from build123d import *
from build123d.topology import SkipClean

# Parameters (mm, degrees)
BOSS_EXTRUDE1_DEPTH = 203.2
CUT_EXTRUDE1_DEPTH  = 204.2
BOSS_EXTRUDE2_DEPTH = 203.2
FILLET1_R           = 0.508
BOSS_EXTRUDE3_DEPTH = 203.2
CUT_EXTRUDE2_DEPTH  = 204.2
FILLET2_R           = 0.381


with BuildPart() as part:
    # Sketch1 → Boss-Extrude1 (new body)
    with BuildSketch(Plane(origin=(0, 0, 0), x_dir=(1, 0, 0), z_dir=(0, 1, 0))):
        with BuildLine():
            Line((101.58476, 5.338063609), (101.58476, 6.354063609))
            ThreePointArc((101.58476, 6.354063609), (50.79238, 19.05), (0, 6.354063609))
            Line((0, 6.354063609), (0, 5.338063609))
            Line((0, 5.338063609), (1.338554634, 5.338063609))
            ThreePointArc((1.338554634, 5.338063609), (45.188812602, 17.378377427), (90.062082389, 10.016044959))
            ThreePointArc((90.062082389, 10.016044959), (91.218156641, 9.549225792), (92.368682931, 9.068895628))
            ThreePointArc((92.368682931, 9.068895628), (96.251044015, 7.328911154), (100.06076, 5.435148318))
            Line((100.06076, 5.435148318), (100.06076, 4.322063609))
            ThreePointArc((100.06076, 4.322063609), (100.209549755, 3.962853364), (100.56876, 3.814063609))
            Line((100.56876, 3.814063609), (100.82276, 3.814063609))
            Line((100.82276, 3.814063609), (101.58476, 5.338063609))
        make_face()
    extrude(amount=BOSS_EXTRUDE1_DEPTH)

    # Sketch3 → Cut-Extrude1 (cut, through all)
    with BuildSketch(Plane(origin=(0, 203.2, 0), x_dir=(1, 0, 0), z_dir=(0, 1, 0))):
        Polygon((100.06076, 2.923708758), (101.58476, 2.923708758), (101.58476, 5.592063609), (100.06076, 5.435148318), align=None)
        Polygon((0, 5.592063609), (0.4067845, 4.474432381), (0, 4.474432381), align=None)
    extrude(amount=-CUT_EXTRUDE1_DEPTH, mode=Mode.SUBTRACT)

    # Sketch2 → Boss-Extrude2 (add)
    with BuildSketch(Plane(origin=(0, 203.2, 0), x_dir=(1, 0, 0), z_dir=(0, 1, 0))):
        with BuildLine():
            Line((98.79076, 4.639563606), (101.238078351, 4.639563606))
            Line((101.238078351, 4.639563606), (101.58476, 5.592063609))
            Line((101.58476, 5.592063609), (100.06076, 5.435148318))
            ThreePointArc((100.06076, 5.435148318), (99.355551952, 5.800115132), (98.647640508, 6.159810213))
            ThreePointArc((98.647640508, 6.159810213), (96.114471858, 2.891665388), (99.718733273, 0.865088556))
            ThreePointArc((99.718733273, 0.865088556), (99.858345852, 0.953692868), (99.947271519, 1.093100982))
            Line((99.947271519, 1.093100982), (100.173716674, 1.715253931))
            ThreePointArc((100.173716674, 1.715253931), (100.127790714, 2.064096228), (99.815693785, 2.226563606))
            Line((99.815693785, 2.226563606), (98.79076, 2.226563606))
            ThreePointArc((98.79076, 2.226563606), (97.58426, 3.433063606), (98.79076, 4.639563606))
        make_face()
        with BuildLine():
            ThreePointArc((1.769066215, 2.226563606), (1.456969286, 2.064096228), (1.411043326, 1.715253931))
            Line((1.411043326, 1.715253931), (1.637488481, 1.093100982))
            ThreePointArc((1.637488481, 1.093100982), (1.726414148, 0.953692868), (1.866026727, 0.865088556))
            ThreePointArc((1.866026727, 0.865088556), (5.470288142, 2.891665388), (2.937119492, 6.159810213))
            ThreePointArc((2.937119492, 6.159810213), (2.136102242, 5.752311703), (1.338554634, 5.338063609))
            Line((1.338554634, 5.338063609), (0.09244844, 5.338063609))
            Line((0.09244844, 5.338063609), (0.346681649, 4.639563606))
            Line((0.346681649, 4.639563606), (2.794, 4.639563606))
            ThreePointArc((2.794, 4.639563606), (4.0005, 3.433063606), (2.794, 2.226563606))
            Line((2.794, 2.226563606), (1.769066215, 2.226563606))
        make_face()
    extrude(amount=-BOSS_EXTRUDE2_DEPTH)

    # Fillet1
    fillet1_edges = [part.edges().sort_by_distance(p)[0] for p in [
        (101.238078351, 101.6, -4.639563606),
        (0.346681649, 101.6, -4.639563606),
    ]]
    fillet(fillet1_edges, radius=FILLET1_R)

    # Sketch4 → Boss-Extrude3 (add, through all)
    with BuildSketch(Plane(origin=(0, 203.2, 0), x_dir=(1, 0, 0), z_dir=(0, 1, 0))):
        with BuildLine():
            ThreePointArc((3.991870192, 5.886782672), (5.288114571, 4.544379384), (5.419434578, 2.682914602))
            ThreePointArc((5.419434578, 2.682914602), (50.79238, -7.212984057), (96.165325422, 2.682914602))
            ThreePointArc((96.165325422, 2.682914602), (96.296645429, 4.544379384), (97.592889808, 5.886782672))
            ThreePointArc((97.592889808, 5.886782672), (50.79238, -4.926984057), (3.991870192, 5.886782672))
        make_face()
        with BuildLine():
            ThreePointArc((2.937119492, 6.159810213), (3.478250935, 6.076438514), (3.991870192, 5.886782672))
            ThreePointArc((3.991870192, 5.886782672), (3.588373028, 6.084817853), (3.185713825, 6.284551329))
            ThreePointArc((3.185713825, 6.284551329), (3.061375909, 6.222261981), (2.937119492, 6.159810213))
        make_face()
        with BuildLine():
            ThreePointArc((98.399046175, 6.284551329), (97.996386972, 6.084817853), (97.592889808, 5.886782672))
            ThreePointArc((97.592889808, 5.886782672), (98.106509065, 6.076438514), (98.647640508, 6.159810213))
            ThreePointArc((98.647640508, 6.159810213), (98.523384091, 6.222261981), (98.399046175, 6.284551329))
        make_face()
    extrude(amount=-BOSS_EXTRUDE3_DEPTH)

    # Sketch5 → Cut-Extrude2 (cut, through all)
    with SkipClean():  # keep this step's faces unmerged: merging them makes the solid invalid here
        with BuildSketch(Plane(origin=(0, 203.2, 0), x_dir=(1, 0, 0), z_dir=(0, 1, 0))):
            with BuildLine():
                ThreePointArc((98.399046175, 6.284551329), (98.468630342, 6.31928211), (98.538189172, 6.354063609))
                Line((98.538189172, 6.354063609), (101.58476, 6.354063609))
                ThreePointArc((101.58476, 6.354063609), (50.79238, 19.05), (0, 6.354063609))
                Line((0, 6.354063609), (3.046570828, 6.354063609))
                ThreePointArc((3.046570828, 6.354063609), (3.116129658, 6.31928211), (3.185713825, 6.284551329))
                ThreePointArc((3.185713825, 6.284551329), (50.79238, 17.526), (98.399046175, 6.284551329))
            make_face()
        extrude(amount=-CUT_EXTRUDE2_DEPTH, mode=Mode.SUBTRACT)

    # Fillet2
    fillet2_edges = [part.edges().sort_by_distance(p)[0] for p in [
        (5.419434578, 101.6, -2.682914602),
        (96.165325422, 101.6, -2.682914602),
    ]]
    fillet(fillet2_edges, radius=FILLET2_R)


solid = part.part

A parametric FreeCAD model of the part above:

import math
import FreeCAD as App
import Part
import Sketcher

V = App.Vector
Q = App.Units.Quantity


def edges_at(feature, points):
    """Names of the edges that pass closest to the given points."""
    edges = feature.Shape.Edges
    near = lambda p: min(range(len(edges)), key=lambda i: edges[i].distToShape(Part.Vertex(*p))[0])
    return sorted({f"Edge{near(p) + 1}" for p in points})


def add_polygon(sketch, points):
    """Adds a closed chain of lines whose ends are joined by coincident constraints."""
    first, n = sketch.GeometryCount, len(points)
    for a, b in zip(points, points[1:] + points[:1]):
        sketch.addGeometry(Part.LineSegment(App.Vector(*a, 0), App.Vector(*b, 0)), False)
    for i in range(n):
        sketch.addConstraint(Sketcher.Constraint("Coincident", first + i, 2, first + (i + 1) % n, 1))

doc = App.newDocument("Part")
body = doc.addObject("PartDesign::Body", "Body")

# Sketch on XZ plane
sketch1 = body.newObject("Sketcher::SketchObject", "Sketch")
sketch1.AttachmentSupport = (doc.getObject("XZ_Plane"), [""])
sketch1.MapMode = "FlatFace"
sketch1.addGeometry(Part.LineSegment(V(101.58, -5.34, 0), V(101.58, -6.35, 0)), False)
sketch1.addGeometry(Part.ArcOfCircle(Part.Circle(V(50.79, 88.9, 0), V(0, 0, 1), 107.95), math.radians(-118), math.radians(-62)), False)
sketch1.addGeometry(Part.LineSegment(V(0, -6.35, 0), V(0, -5.34, 0)), False)
sketch1.addGeometry(Part.LineSegment(V(0, -5.34, 0), V(1.34, -5.34, 0)), False)
sketch1.addGeometry(Part.ArcOfCircle(Part.Circle(V(50.79, 88.9, 0), V(0, 0, 1), 106.43), math.radians(-118), math.radians(-68)), False)
sketch1.addGeometry(Part.ArcOfCircle(Part.Circle(V(50.79, 88.9, 0), V(0, 0, 1), 106.43), math.radians(-68.35), math.radians(-67)), False)
sketch1.addGeometry(Part.ArcOfCircle(Part.Circle(V(50.79, 88.9, 0), V(0, 0, 1), 106.43), math.radians(-67), math.radians(-62.42)), False)
sketch1.addGeometry(Part.LineSegment(V(100.06, -5.44, 0), V(100.06, -4.32, 0)), False)
sketch1.addGeometry(Part.ArcOfCircle(Part.Circle(V(100.57, -4.32, 0), V(0, 0, 1), 0.51), math.radians(90), math.radians(180)), False)
sketch1.addGeometry(Part.LineSegment(V(100.57, -3.81, 0), V(100.82, -3.81, 0)), False)
sketch1.addGeometry(Part.LineSegment(V(100.82, -3.81, 0), V(101.58, -5.34, 0)), False)
sketch1.addConstraint(Sketcher.Constraint("Coincident", 0, 2, 1, 2))
sketch1.addConstraint(Sketcher.Constraint("Coincident", 1, 1, 2, 1))
sketch1.addConstraint(Sketcher.Constraint("Coincident", 2, 2, 3, 1))
sketch1.addConstraint(Sketcher.Constraint("Coincident", 3, 2, 4, 1))
sketch1.addConstraint(Sketcher.Constraint("Tangent", 4, 2, 5, 1))
sketch1.addConstraint(Sketcher.Constraint("Tangent", 5, 2, 6, 1))
sketch1.addConstraint(Sketcher.Constraint("Coincident", 6, 2, 7, 1))
sketch1.addConstraint(Sketcher.Constraint("Tangent", 7, 2, 8, 2))
sketch1.addConstraint(Sketcher.Constraint("Tangent", 8, 1, 9, 1))
sketch1.addConstraint(Sketcher.Constraint("Coincident", 9, 2, 10, 1))
sketch1.addConstraint(Sketcher.Constraint("Coincident", 10, 2, 0, 1))
sketch1.addConstraint(Sketcher.Constraint("Vertical", 0))
sketch1.addConstraint(Sketcher.Constraint("Vertical", 2))
sketch1.addConstraint(Sketcher.Constraint("Horizontal", 3))
sketch1.addConstraint(Sketcher.Constraint("Vertical", 7))
sketch1.addConstraint(Sketcher.Constraint("Horizontal", 9))
sketch1.addConstraint(Sketcher.Constraint("Coincident", 4, 3, 1, 3))
sketch1.addConstraint(Sketcher.Constraint("Coincident", 6, 3, 1, 3))
sketch1.addConstraint(Sketcher.Constraint("PointOnObject", 1, 1, -2))
sketch1.addConstraint(Sketcher.Constraint("Horizontal", 0, 2, 1, 1))
sketch1.addConstraint(Sketcher.Constraint("Horizontal", 3, 2, 10, 2))
sketch1.addConstraint(Sketcher.Constraint("Radius", 1, Q("4.25 in")))
sketch1.addConstraint(Sketcher.Constraint("Radius", 4, Q("4.19 in")))
sketch1.addConstraint(Sketcher.Constraint("Radius", 8, Q("0.02 in")))
sketch1.addConstraint(Sketcher.Constraint("DistanceX", 9, 1, 9, 2, Q("0.01 in")))
sketch1.addConstraint(Sketcher.Constraint("DistanceY", 0, 2, 0, 1, Q("0.04 in")))
sketch1.addConstraint(Sketcher.Constraint("DistanceY", -1, 1, 1, 3, Q("3.5 in")))
sketch1.addConstraint(Sketcher.Constraint("DistanceY", 0, 2, 8, 1, Q("0.1 in")))
sketch1.addConstraint(Sketcher.Constraint("DistanceX", 8, 3, 0, 2, Q("0.04 in")))
sketch1.addConstraint(Sketcher.Constraint("DistanceX", -1, 1, 1, 3, Q("1.9997 in")))
sketch1.addConstraint(Sketcher.Constraint("DistanceX", 4, 2, 5, 2, Q("2.306601 mm")))
sketch1.addConstraint(Sketcher.Constraint("DistanceY", 4, 2, 8, 3, Q("5.693981 mm")))
pad1 = body.newObject("PartDesign::Pad", "Pad")
pad1.Profile = sketch1
pad1.Length = Q("8 in")
pad1.Reversed = True

# Sketch on XZ plane
sketch2 = body.newObject("Sketcher::SketchObject", "Sketch001")
sketch2.AttachmentSupport = (doc.getObject("XZ_Plane"), [""])
sketch2.MapMode = "FlatFace"
sketch2.AttachmentOffset = App.Placement(V(0, 0, -8 * 25.4), App.Rotation())
add_polygon(sketch2, [(100.06, -2.92), (101.58, -2.92), (101.58, -5.59), (100.06, -5.44)])  # lines 0-3
add_polygon(sketch2, [(0.41, -4.47), (0, -5.59), (0, -4.47)])  # lines 4-6
sketch2.addConstraint(Sketcher.Constraint("Horizontal", 0))
sketch2.addConstraint(Sketcher.Constraint("Vertical", 1))
sketch2.addConstraint(Sketcher.Constraint("Vertical", 3))
sketch2.addConstraint(Sketcher.Constraint("Vertical", 5))
sketch2.addConstraint(Sketcher.Constraint("Horizontal", 6))
sketch2.addConstraint(Sketcher.Constraint("PointOnObject", 4, 2, -2))
sketch2.addConstraint(Sketcher.Constraint("Horizontal", 1, 2, 4, 2))
sketch2.addConstraint(Sketcher.Constraint("Angle", 4, Q("-110 deg")))
sketch2.addConstraint(Sketcher.Constraint("DistanceX", 0, 1, 0, 2, Q("0.06 in")))
sketch2.addConstraint(Sketcher.Constraint("DistanceX", -1, 1, 0, 2, Q("3.9994 in")))
sketch2.addConstraint(Sketcher.Constraint("DistanceY", 3, 1, 3, 2, Q("2.51144 mm")))
sketch2.addConstraint(Sketcher.Constraint("DistanceY", 5, 1, 5, 2, Q("1.117631 mm")))
sketch2.addConstraint(Sketcher.Constraint("DistanceY", 1, 2, 1, 1, Q("2.668355 mm")))
sketch2.addConstraint(Sketcher.Constraint("DistanceY", 0, 2, -1, 1, Q("2.923709 mm")))
pocket1 = body.newObject("PartDesign::Pocket", "Pocket")
pocket1.Profile = sketch2
pocket1.Type = "ThroughAll"
pocket1.Reversed = True

# Sketch on XZ plane
sketch3 = body.newObject("Sketcher::SketchObject", "Sketch002")
sketch3.AttachmentSupport = (doc.getObject("XZ_Plane"), [""])
sketch3.MapMode = "FlatFace"
sketch3.AttachmentOffset = App.Placement(V(0, 0, -8 * 25.4), App.Rotation())
sketch3.addGeometry(Part.LineSegment(V(98.79, -4.64, 0), V(101.24, -4.64, 0)), False)
sketch3.addGeometry(Part.LineSegment(V(101.24, -4.64, 0), V(101.58, -5.59, 0)), False)
sketch3.addGeometry(Part.LineSegment(V(101.58, -5.59, 0), V(100.06, -5.44, 0)), False)
sketch3.addGeometry(Part.ArcOfCircle(Part.Circle(V(50.79, 88.9, 0), V(0, 0, 1), 106.43), math.radians(-63.28), math.radians(-62.42)), False)
sketch3.addGeometry(Part.ArcOfCircle(Part.Circle(V(98.79, -3.43, 0), V(0, 0, 1), 2.73), math.radians(70), math.radians(267)), False)
sketch3.addGeometry(Part.ArcOfCircle(Part.Circle(V(99.59, -1.22, 0), V(0, 0, 1), 0.38), math.radians(20), math.radians(70)), False)
sketch3.addGeometry(Part.LineSegment(V(99.95, -1.09, 0), V(100.17, -1.72, 0)), False)
sketch3.addGeometry(Part.ArcOfCircle(Part.Circle(V(99.82, -1.85, 0), V(0, 0, 1), 0.38), math.radians(-90), math.radians(20)), False)
sketch3.addGeometry(Part.LineSegment(V(99.82, -2.23, 0), V(98.79, -2.23, 0)), False)
sketch3.addGeometry(Part.ArcOfCircle(Part.Circle(V(98.79, -3.43, 0), V(0, 0, 1), 1.21), math.radians(90), math.radians(270)), False)
sketch3.addGeometry(Part.ArcOfCircle(Part.Circle(V(1.77, -1.85, 0), V(0, 0, 1), 0.38), math.radians(160), math.radians(270)), False)
sketch3.addGeometry(Part.LineSegment(V(1.41, -1.72, 0), V(1.64, -1.09, 0)), False)
sketch3.addGeometry(Part.ArcOfCircle(Part.Circle(V(2, -1.22, 0), V(0, 0, 1), 0.38), math.radians(110), math.radians(160)), False)
sketch3.addGeometry(Part.ArcOfCircle(Part.Circle(V(2.79, -3.43, 0), V(0, 0, 1), 2.73), math.radians(-87), math.radians(110)), False)
sketch3.addGeometry(Part.ArcOfCircle(Part.Circle(V(50.79, 88.9, 0), V(0, 0, 1), 106.43), math.radians(-117.69), math.radians(-116.72)), False)
sketch3.addGeometry(Part.LineSegment(V(1.34, -5.34, 0), V(0.09, -5.34, 0)), False)
sketch3.addGeometry(Part.LineSegment(V(0.09, -5.34, 0), V(0.35, -4.64, 0)), False)
sketch3.addGeometry(Part.LineSegment(V(0.35, -4.64, 0), V(2.79, -4.64, 0)), False)
sketch3.addGeometry(Part.ArcOfCircle(Part.Circle(V(2.79, -3.43, 0), V(0, 0, 1), 1.21), math.radians(-90), math.radians(90)), False)
sketch3.addGeometry(Part.LineSegment(V(2.79, -2.23, 0), V(1.77, -2.23, 0)), False)
sketch3.addConstraint(Sketcher.Constraint("Coincident", 0, 2, 1, 1))
sketch3.addConstraint(Sketcher.Constraint("Coincident", 1, 2, 2, 1))
sketch3.addConstraint(Sketcher.Constraint("Coincident", 2, 2, 3, 2))
sketch3.addConstraint(Sketcher.Constraint("Coincident", 3, 1, 4, 2))
sketch3.addConstraint(Sketcher.Constraint("Tangent", 4, 1, 5, 2))
sketch3.addConstraint(Sketcher.Constraint("Tangent", 5, 1, 6, 1))
sketch3.addConstraint(Sketcher.Constraint("Tangent", 6, 2, 7, 2))
sketch3.addConstraint(Sketcher.Constraint("Tangent", 7, 1, 8, 1))
sketch3.addConstraint(Sketcher.Constraint("Tangent", 8, 2, 9, 1))
sketch3.addConstraint(Sketcher.Constraint("Tangent", 9, 2, 0, 1))
sketch3.addConstraint(Sketcher.Constraint("Tangent", 10, 1, 11, 1))
sketch3.addConstraint(Sketcher.Constraint("Tangent", 11, 2, 12, 2))
sketch3.addConstraint(Sketcher.Constraint("Tangent", 12, 1, 13, 2))
sketch3.addConstraint(Sketcher.Constraint("Coincident", 13, 1, 14, 2))
sketch3.addConstraint(Sketcher.Constraint("Coincident", 14, 1, 15, 1))
sketch3.addConstraint(Sketcher.Constraint("Coincident", 15, 2, 16, 1))
sketch3.addConstraint(Sketcher.Constraint("Coincident", 16, 2, 17, 1))
sketch3.addConstraint(Sketcher.Constraint("Tangent", 17, 2, 18, 1))
sketch3.addConstraint(Sketcher.Constraint("Tangent", 18, 2, 19, 1))
sketch3.addConstraint(Sketcher.Constraint("Tangent", 19, 2, 10, 2))
sketch3.addConstraint(Sketcher.Constraint("Horizontal", 0))
sketch3.addConstraint(Sketcher.Constraint("Horizontal", 8))
sketch3.addConstraint(Sketcher.Constraint("Horizontal", 15))
sketch3.addConstraint(Sketcher.Constraint("Horizontal", 17))
sketch3.addConstraint(Sketcher.Constraint("Horizontal", 19))
sketch3.addConstraint(Sketcher.Constraint("Coincident", 9, 3, 4, 3))
sketch3.addConstraint(Sketcher.Constraint("Coincident", 18, 3, 13, 3))
sketch3.addConstraint(Sketcher.Constraint("Equal", 5, 7))
sketch3.addConstraint(Sketcher.Constraint("Equal", 7, 10))
sketch3.addConstraint(Sketcher.Constraint("Equal", 10, 12))
sketch3.addConstraint(Sketcher.Constraint("Equal", 4, 13))
sketch3.addConstraint(Sketcher.Constraint("Equal", 9, 18))
sketch3.addConstraint(Sketcher.Constraint("Parallel", 1, 6))
sketch3.addConstraint(Sketcher.Constraint("Parallel", 11, 16))
sketch3.addConstraint(Sketcher.Constraint("Horizontal", 7, 3, 10, 3))
sketch3.addConstraint(Sketcher.Constraint("Horizontal", 5, 3, 12, 3))
sketch3.addConstraint(Sketcher.Constraint("Horizontal", 6, 2, 10, 1))
sketch3.addConstraint(Sketcher.Constraint("Horizontal", 3, 1, 13, 1))
sketch3.addConstraint(Sketcher.Constraint("Vertical", 3, 3, 14, 3))
sketch3.addConstraint(Sketcher.Constraint("Equal", 0, 17))
sketch3.addConstraint(Sketcher.Constraint("Angle", 1, Q("-70 deg")))
sketch3.addConstraint(Sketcher.Constraint("Radius", 5, Q("0.015 in")))
sketch3.addConstraint(Sketcher.Constraint("Radius", 4, Q("0.1075 in")))
sketch3.addConstraint(Sketcher.Constraint("Radius", 9, Q("0.0475 in")))
sketch3.addConstraint(Sketcher.Constraint("DistanceX", -1, 1, 13, 3, Q("0.11 in")))
sketch3.addConstraint(Sketcher.Constraint("DistanceX", 4, 3, 1, 2, Q("0.11 in")))
sketch3.addConstraint(Sketcher.Constraint("DistanceX", 2, 2, 1, 2, Q("0.06 in")))
sketch3.addConstraint(Sketcher.Constraint("Radius", 14, Q("106.42601 mm")))
sketch3.addConstraint(Sketcher.Constraint("DistanceY", 1, 2, 4, 3, Q("0.085 in")))
sketch3.addConstraint(Sketcher.Constraint("DistanceY", 14, 1, 13, 3, Q("0.075 in")))
sketch3.addConstraint(Sketcher.Constraint("DistanceX", -1, 1, 3, 3, Q("1.9997001 in")))
sketch3.addConstraint(Sketcher.Constraint("DistanceX", -1, 1, 4, 3, Q("3.8894 in")))
sketch3.addConstraint(Sketcher.Constraint("Radius", 3, Q("106.425993 mm")))
sketch3.addConstraint(Sketcher.Constraint("DistanceY", 5, 1, -1, 1, Q("1.093101 mm")))
sketch3.addConstraint(Sketcher.Constraint("DistanceY", 13, 1, 12, 3, Q("4.9364 mm")))
sketch3.addConstraint(Sketcher.Constraint("Distance", 6, Q("0.662081 mm")))
pad2 = body.newObject("PartDesign::Pad", "Pad001")
pad2.Profile = sketch3
pad2.Length = Q("8 in")
doc.recompute()

fillet = body.newObject("PartDesign::Fillet", "Fillet")
fillet.Base = (pad2, edges_at(pad2, [(101.238, 101.6, -4.64), (0.347, 101.6, -4.64)]))
fillet.Radius = Q("0.02 in")

# Sketch on XZ plane
sketch4 = body.newObject("Sketcher::SketchObject", "Sketch003")
sketch4.AttachmentSupport = (doc.getObject("XZ_Plane"), [""])
sketch4.MapMode = "FlatFace"
sketch4.AttachmentOffset = App.Placement(V(0, 0, -8 * 25.4), App.Rotation())
sketch4.addGeometry(Part.ArcOfCircle(Part.Circle(V(2.79, -3.43, 0), V(0, 0, 1), 2.73), math.radians(-64), math.radians(16)), False)
sketch4.addGeometry(Part.ArcOfCircle(Part.Circle(V(50.79, -101.75, 0), V(0, 0, 1), 108.97), math.radians(65), math.radians(115)), False)
sketch4.addGeometry(Part.ArcOfCircle(Part.Circle(V(98.79, -3.43, 0), V(0, 0, 1), 2.73), math.radians(164), math.radians(244)), False)
sketch4.addGeometry(Part.ArcOfCircle(Part.Circle(V(50.79, -101.75, 0), V(0, 0, 1), 106.68), math.radians(64), math.radians(116)), False)
sketch4.addGeometry(Part.ArcOfCircle(Part.Circle(V(2.79, -3.43, 0), V(0, 0, 1), 2.73), math.radians(-87), math.radians(-64)), False)
sketch4.addGeometry(Part.ArcOfCircle(Part.Circle(V(50.79, -101.75, 0), V(0, 0, 1), 106.68), math.radians(116.02), math.radians(116.5)), False)
sketch4.addGeometry(Part.ArcOfCircle(Part.Circle(V(50.79, 88.9, 0), V(0, 0, 1), 106.43), math.radians(-116.72), math.radians(-116.57)), False)
sketch4.addGeometry(Part.ArcOfCircle(Part.Circle(V(50.79, -101.75, 0), V(0, 0, 1), 106.68), math.radians(63.5), math.radians(63.98)), False)
sketch4.addGeometry(Part.ArcOfCircle(Part.Circle(V(98.79, -3.43, 0), V(0, 0, 1), 2.73), math.radians(-116), math.radians(-93)), False)
sketch4.addGeometry(Part.ArcOfCircle(Part.Circle(V(50.79, 88.9, 0), V(0, 0, 1), 106.43), math.radians(-63.43), math.radians(-63.28)), False)
sketch4.addConstraint(Sketcher.Constraint("Coincident", 0, 2, 1, 2))
sketch4.addConstraint(Sketcher.Constraint("Coincident", 1, 1, 2, 1))
sketch4.addConstraint(Sketcher.Constraint("Tangent", 2, 2, 3, 1))
sketch4.addConstraint(Sketcher.Constraint("Tangent", 3, 2, 0, 1))
sketch4.addConstraint(Sketcher.Constraint("Tangent", 4, 2, 5, 1))
sketch4.addConstraint(Sketcher.Constraint("Coincident", 5, 2, 6, 2))
sketch4.addConstraint(Sketcher.Constraint("Coincident", 6, 1, 4, 1))
sketch4.addConstraint(Sketcher.Constraint("Tangent", 7, 2, 8, 1))
sketch4.addConstraint(Sketcher.Constraint("Coincident", 8, 2, 9, 2))
sketch4.addConstraint(Sketcher.Constraint("Coincident", 9, 1, 7, 1))
sketch4.addConstraint(Sketcher.Constraint("Coincident", 3, 3, 1, 3))
sketch4.addConstraint(Sketcher.Constraint("Coincident", 4, 3, 0, 3))
sketch4.addConstraint(Sketcher.Constraint("Coincident", 8, 3, 2, 3))
sketch4.addConstraint(Sketcher.Constraint("Equal", 0, 2))
sketch4.addConstraint(Sketcher.Constraint("Equal", 2, 4))
sketch4.addConstraint(Sketcher.Constraint("Equal", 5, 7))
sketch4.addConstraint(Sketcher.Constraint("Equal", 4, 8))
sketch4.addConstraint(Sketcher.Constraint("Equal", 6, 9))
sketch4.addConstraint(Sketcher.Constraint("Horizontal", 0, 3, 2, 3))
sketch4.addConstraint(Sketcher.Constraint("Horizontal", 5, 3, 7, 3))
sketch4.addConstraint(Sketcher.Constraint("Horizontal", 6, 3, 9, 3))
sketch4.addConstraint(Sketcher.Constraint("Horizontal", 2, 2, 4, 2))
sketch4.addConstraint(Sketcher.Constraint("Horizontal", 5, 2, 9, 1))
sketch4.addConstraint(Sketcher.Constraint("Radius", 3, Q("4.2 in")))
sketch4.addConstraint(Sketcher.Constraint("Radius", 1, Q("4.29 in")))
sketch4.addConstraint(Sketcher.Constraint("Radius", 0, Q("0.1075 in")))
sketch4.addConstraint(Sketcher.Constraint("DistanceX", -1, 1, 0, 3, Q("0.11 in")))
sketch4.addConstraint(Sketcher.Constraint("DistanceX", -1, 1, 1, 3, Q("1.9997 in")))
sketch4.addConstraint(Sketcher.Constraint("Radius", 5, Q("106.679976 mm")))
sketch4.addConstraint(Sketcher.Constraint("Radius", 6, Q("106.426514 mm")))
sketch4.addConstraint(Sketcher.Constraint("DistanceX", -1, 1, 6, 3, Q("50.792611 mm")))
sketch4.addConstraint(Sketcher.Constraint("DistanceY", -1, 1, 6, 3, Q("88.90046 mm")))
sketch4.addConstraint(Sketcher.Constraint("DistanceY", 5, 2, -1, 1, Q("6.284551 mm")))
pad3 = body.newObject("PartDesign::Pad", "Pad002")
pad3.Profile = sketch4
pad3.Length = Q("8 in")

# Sketch on XZ plane
sketch5 = body.newObject("Sketcher::SketchObject", "Sketch004")
sketch5.AttachmentSupport = (doc.getObject("XZ_Plane"), [""])
sketch5.MapMode = "FlatFace"
sketch5.AttachmentOffset = App.Placement(V(0, 0, -8 * 25.4), App.Rotation())
sketch5.addGeometry(Part.ArcOfCircle(Part.Circle(V(50.79, -101.75, 0), V(0, 0, 1), 106.68), math.radians(63.41), math.radians(63.5)), False)
sketch5.addGeometry(Part.LineSegment(V(98.54, -6.35, 0), V(101.58, -6.35, 0)), False)
sketch5.addGeometry(Part.ArcOfCircle(Part.Circle(V(50.79, 88.9, 0), V(0, 0, 1), 107.95), math.radians(-118), math.radians(-62)), False)
sketch5.addGeometry(Part.LineSegment(V(0, -6.35, 0), V(3.05, -6.35, 0)), False)
sketch5.addGeometry(Part.ArcOfCircle(Part.Circle(V(50.79, -101.75, 0), V(0, 0, 1), 106.68), math.radians(116.5), math.radians(116.59)), False)
sketch5.addGeometry(Part.ArcOfCircle(Part.Circle(V(50.79, 88.9, 0), V(0, 0, 1), 106.43), math.radians(-117), math.radians(-63)), False)
sketch5.addConstraint(Sketcher.Constraint("Coincident", 0, 1, 1, 1))
sketch5.addConstraint(Sketcher.Constraint("Coincident", 1, 2, 2, 2))
sketch5.addConstraint(Sketcher.Constraint("Coincident", 2, 1, 3, 1))
sketch5.addConstraint(Sketcher.Constraint("Coincident", 3, 2, 4, 2))
sketch5.addConstraint(Sketcher.Constraint("Coincident", 4, 1, 5, 1))
sketch5.addConstraint(Sketcher.Constraint("Coincident", 5, 2, 0, 2))
sketch5.addConstraint(Sketcher.Constraint("Horizontal", 1))
sketch5.addConstraint(Sketcher.Constraint("Horizontal", 3))
sketch5.addConstraint(Sketcher.Constraint("Coincident", 5, 3, 2, 3))
sketch5.addConstraint(Sketcher.Constraint("Equal", 0, 4))
sketch5.addConstraint(Sketcher.Constraint("PointOnObject", 2, 1, -2))
sketch5.addConstraint(Sketcher.Constraint("Horizontal", 0, 3, 4, 3))
sketch5.addConstraint(Sketcher.Constraint("Horizontal", 1, 2, 2, 1))
sketch5.addConstraint(Sketcher.Constraint("Horizontal", 4, 1, 5, 2))
sketch5.addConstraint(Sketcher.Constraint("Radius", 2, Q("4.25 in")))
sketch5.addConstraint(Sketcher.Constraint("Radius", 5, Q("4.19 in")))
sketch5.addConstraint(Sketcher.Constraint("DistanceY", -1, 1, 2, 3, Q("3.5 in")))
sketch5.addConstraint(Sketcher.Constraint("Radius", 0, Q("106.680039 mm")))
sketch5.addConstraint(Sketcher.Constraint("DistanceX", -1, 1, 2, 3, Q("1.9997 in")))
sketch5.addConstraint(Sketcher.Constraint("DistanceX", 1, 1, 1, 2, Q("3.046571 mm")))
sketch5.addConstraint(Sketcher.Constraint("DistanceY", 0, 3, -1, 1, Q("101.753051 mm")))
pocket2 = body.newObject("PartDesign::Pocket", "Pocket001")
pocket2.Profile = sketch5
pocket2.Type = "ThroughAll"
pocket2.Reversed = True
doc.recompute()

fillet2 = body.newObject("PartDesign::Fillet", "Fillet001")
fillet2.Base = (pocket2, edges_at(pocket2, [(5.419, 101.6, -2.683), (96.165, 101.6, -2.683)]))
fillet2.Radius = Q("0.015 in")

doc.recompute()
